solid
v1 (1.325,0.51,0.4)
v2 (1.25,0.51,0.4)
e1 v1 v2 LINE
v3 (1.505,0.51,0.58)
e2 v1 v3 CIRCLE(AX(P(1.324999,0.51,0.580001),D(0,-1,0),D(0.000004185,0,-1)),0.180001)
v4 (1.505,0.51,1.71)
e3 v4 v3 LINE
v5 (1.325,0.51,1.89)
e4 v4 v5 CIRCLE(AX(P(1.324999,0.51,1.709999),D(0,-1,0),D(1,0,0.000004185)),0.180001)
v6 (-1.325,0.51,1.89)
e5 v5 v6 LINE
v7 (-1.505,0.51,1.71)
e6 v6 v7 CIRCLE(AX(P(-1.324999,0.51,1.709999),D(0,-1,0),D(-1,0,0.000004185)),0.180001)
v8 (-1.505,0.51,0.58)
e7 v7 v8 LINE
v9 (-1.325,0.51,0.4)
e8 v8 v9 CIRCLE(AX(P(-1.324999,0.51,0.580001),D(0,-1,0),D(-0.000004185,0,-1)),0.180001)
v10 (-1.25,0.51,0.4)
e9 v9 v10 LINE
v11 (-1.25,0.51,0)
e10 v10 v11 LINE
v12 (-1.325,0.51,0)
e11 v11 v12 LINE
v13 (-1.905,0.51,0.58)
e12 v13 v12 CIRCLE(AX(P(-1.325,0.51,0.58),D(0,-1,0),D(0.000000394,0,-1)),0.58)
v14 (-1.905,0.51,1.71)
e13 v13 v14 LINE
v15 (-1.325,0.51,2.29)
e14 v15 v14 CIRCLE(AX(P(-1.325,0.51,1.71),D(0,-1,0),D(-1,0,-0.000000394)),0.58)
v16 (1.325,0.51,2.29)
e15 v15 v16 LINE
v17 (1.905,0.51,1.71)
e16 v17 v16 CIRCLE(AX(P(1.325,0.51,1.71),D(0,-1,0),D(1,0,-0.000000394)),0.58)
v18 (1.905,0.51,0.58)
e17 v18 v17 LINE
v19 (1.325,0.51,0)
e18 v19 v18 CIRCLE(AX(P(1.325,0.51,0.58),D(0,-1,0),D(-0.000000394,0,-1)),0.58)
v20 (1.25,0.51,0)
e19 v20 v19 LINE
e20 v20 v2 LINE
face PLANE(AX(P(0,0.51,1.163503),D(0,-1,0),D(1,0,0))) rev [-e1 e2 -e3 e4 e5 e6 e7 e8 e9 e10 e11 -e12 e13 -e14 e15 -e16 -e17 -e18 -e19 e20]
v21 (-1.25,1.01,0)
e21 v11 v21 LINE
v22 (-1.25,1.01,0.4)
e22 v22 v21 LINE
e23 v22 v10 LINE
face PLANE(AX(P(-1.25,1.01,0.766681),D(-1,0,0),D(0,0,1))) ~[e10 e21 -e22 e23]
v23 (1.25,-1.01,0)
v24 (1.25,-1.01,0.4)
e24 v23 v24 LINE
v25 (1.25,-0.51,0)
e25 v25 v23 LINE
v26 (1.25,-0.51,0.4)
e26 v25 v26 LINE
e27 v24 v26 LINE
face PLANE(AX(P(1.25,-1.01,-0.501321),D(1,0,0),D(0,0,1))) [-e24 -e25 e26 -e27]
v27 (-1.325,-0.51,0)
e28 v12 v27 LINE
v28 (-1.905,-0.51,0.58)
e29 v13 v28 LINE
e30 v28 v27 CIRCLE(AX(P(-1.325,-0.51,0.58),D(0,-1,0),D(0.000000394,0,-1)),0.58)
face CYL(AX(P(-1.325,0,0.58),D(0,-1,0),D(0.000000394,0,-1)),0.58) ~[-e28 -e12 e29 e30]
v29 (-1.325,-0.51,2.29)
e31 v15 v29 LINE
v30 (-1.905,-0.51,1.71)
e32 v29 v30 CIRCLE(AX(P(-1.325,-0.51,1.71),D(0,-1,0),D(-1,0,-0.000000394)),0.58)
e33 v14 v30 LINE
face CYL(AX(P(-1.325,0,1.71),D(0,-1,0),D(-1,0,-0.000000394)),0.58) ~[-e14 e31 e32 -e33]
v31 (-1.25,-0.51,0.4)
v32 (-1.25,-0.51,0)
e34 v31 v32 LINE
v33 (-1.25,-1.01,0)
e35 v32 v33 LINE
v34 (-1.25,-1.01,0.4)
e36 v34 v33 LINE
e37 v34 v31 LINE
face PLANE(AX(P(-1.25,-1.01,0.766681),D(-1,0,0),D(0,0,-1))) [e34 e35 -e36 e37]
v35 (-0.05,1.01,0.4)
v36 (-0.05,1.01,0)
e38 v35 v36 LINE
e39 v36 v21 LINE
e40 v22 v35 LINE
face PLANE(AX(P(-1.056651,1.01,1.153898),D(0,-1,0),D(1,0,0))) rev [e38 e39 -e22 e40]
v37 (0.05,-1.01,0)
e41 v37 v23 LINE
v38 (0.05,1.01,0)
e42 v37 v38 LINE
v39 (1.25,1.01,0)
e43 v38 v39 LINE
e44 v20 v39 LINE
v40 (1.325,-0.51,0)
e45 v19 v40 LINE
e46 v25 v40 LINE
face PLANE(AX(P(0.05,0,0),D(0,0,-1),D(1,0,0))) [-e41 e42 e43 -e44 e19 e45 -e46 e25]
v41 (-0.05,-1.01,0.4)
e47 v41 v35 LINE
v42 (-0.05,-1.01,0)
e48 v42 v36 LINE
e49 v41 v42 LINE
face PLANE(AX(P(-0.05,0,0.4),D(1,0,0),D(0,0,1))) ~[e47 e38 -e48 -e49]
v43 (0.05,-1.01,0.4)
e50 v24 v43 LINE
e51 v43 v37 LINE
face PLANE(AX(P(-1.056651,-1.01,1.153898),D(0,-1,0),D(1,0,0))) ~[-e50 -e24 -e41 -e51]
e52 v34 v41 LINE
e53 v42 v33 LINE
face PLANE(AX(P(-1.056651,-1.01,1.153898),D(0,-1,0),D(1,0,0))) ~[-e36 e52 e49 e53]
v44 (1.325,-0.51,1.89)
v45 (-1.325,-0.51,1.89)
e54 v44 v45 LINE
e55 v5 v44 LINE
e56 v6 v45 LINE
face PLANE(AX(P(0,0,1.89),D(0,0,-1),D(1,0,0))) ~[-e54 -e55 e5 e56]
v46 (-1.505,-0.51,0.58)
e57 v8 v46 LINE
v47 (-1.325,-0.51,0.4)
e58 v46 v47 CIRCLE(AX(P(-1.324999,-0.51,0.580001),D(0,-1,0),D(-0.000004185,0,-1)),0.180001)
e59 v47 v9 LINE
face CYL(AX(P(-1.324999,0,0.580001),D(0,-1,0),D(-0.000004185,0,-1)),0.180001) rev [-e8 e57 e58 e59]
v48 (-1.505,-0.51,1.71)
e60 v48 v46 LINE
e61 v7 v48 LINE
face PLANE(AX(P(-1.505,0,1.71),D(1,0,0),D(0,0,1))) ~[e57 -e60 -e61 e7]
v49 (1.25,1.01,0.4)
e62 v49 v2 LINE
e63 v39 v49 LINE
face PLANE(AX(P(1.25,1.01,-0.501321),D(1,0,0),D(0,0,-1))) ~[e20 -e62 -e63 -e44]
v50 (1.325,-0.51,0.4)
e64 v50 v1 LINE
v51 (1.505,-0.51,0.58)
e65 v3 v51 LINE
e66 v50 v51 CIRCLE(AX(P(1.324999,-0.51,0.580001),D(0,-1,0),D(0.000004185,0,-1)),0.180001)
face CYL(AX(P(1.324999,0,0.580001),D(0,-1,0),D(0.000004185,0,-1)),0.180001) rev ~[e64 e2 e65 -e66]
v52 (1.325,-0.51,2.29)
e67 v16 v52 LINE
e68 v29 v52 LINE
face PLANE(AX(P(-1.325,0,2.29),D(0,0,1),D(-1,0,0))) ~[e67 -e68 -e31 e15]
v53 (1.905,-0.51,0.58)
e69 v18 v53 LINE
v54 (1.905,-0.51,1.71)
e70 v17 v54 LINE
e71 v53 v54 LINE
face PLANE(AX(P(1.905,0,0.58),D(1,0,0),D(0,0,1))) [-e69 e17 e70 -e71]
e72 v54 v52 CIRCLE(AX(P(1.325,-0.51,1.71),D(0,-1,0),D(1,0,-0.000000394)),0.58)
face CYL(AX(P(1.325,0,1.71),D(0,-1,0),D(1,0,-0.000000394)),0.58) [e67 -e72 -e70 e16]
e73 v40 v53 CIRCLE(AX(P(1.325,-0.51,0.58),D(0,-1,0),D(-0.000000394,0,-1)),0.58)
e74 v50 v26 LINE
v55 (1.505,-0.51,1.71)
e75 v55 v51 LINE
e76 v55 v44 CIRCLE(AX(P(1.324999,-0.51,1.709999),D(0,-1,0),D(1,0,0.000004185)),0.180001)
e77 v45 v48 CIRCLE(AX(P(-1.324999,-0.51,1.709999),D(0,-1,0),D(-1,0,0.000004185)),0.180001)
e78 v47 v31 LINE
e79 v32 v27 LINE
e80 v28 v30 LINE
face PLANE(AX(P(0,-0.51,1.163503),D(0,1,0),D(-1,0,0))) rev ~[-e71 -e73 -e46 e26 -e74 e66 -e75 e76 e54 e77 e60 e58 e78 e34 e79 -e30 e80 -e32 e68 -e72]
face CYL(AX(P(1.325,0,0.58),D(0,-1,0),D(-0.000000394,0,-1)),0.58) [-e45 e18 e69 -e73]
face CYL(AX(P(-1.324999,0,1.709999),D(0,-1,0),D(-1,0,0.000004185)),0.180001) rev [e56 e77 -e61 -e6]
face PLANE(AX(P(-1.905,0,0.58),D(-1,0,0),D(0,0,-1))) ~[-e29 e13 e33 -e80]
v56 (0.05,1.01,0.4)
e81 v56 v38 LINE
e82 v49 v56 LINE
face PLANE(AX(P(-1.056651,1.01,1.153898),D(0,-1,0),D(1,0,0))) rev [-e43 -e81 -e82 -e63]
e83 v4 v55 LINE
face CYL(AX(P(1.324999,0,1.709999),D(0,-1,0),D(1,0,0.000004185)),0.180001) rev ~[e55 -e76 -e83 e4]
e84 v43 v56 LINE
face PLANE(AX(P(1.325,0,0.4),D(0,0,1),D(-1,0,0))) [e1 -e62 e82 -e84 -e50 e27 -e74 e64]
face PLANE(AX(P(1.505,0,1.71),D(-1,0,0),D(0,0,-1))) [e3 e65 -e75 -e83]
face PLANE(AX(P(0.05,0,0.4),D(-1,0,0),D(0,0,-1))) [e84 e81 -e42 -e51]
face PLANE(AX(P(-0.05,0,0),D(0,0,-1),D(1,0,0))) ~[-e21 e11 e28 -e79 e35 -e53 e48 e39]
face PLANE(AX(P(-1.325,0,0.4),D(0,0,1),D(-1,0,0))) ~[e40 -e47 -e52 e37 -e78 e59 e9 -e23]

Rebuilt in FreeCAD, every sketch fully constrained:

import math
import FreeCAD as App
import Part
import Sketcher
from FreeCAD import Vector
Q = App.Units.Quantity


def add_polygon(sketch, points):
    """Adds a closed chain of lines whose ends are joined by coincident constraints."""
    first, n = sketch.GeometryCount, len(points)
    for a, b in zip(points, points[1:] + points[:1]):
        sketch.addGeometry(Part.LineSegment(App.Vector(*a, 0), App.Vector(*b, 0)), False)
    for i in range(n):
        sketch.addConstraint(Sketcher.Constraint("Coincident", first + i, 2, first + (i + 1) % n, 1))

doc = App.newDocument("Part")
body = doc.addObject("PartDesign::Body", "Body")

sketch1 = body.newObject("Sketcher::SketchObject", "Sketch")
sketch1.AttachmentSupport = (doc.getObject("XZ_Plane"), [""])
sketch1.MapMode = "FlatFace"
sketch1.addGeometry(Part.LineSegment(Vector(0.05, 0, 0), Vector(1.32, 0, 0)), False)
sketch1.addGeometry(Part.ArcOfCircle(Part.Circle(Vector(1.33, 0.58, 0), Vector(0, 0, 1), 0.58), math.radians(-90), math.radians(0)), False)
sketch1.addGeometry(Part.LineSegment(Vector(1.91, 0.58, 0), Vector(1.91, 1.71, 0)), False)
sketch1.addGeometry(Part.ArcOfCircle(Part.Circle(Vector(1.33, 1.71, 0), Vector(0, 0, 1), 0.58), math.radians(0), math.radians(90)), False)
sketch1.addGeometry(Part.LineSegment(Vector(1.32, 2.29, 0), Vector(0, 2.29, 0)), False)
sketch1.addGeometry(Part.LineSegment(Vector(0, 2.29, 0), Vector(0, 1.89, 0)), False)
sketch1.addGeometry(Part.LineSegment(Vector(0, 1.89, 0), Vector(1.32, 1.89, 0)), False)
sketch1.addGeometry(Part.ArcOfCircle(Part.Circle(Vector(1.32, 1.71, 0), Vector(0, 0, 1), 0.18), math.radians(0), math.radians(90)), False)
sketch1.addGeometry(Part.LineSegment(Vector(1.5, 1.71, 0), Vector(1.5, 0.58, 0)), False)
sketch1.addGeometry(Part.ArcOfCircle(Part.Circle(Vector(1.32, 0.58, 0), Vector(0, 0, 1), 0.18), math.radians(-90), math.radians(0)), False)
sketch1.addGeometry(Part.LineSegment(Vector(1.32, 0.4, 0), Vector(0.05, 0.4, 0)), False)
sketch1.addGeometry(Part.LineSegment(Vector(0.05, 0.4, 0), Vector(0.05, 0, 0)), False)
sketch1.addConstraint(Sketcher.Constraint("Tangent", 0, 2, 1, 1))
sketch1.addConstraint(Sketcher.Constraint("Tangent", 1, 2, 2, 1))
sketch1.addConstraint(Sketcher.Constraint("Tangent", 2, 2, 3, 1))
sketch1.addConstraint(Sketcher.Constraint("Tangent", 3, 2, 4, 1))
sketch1.addConstraint(Sketcher.Constraint("Coincident", 4, 2, 5, 1))
sketch1.addConstraint(Sketcher.Constraint("Coincident", 5, 2, 6, 1))
sketch1.addConstraint(Sketcher.Constraint("Coincident", 6, 2, 7, 2))
sketch1.addConstraint(Sketcher.Constraint("Coincident", 7, 1, 8, 1))
sketch1.addConstraint(Sketcher.Constraint("Coincident", 8, 2, 9, 2))
sketch1.addConstraint(Sketcher.Constraint("Coincident", 9, 1, 10, 1))
sketch1.addConstraint(Sketcher.Constraint("Coincident", 10, 2, 11, 1))
sketch1.addConstraint(Sketcher.Constraint("Coincident", 11, 2, 0, 1))
sketch1.addConstraint(Sketcher.Constraint("Horizontal", 0))
sketch1.addConstraint(Sketcher.Constraint("Vertical", 2))
sketch1.addConstraint(Sketcher.Constraint("Horizontal", 4))
sketch1.addConstraint(Sketcher.Constraint("Vertical", 5))
sketch1.addConstraint(Sketcher.Constraint("Horizontal", 6))
sketch1.addConstraint(Sketcher.Constraint("Vertical", 8))
sketch1.addConstraint(Sketcher.Constraint("Horizontal", 10))
sketch1.addConstraint(Sketcher.Constraint("Vertical", 11))
sketch1.addConstraint(Sketcher.Constraint("Coincident", 7, 3, 3, 3))
sketch1.addConstraint(Sketcher.Constraint("Coincident", 9, 3, 1, 3))
sketch1.addConstraint(Sketcher.Constraint("Equal", 1, 3))
sketch1.addConstraint(Sketcher.Constraint("PointOnObject", 0, 2, -1))
sketch1.addConstraint(Sketcher.Constraint("PointOnObject", 4, 2, -2))
sketch1.addConstraint(Sketcher.Constraint("Horizontal", 2, 2, 7, 1))
sketch1.addConstraint(Sketcher.Constraint("Horizontal", 1, 2, 8, 2))
sketch1.addConstraint(Sketcher.Constraint("Vertical", 3, 2, 6, 2))
sketch1.addConstraint(Sketcher.Constraint("Vertical", 6, 2, 9, 1))
sketch1.addConstraint(Sketcher.Constraint("Radius", 1, Q("0.58 mm")))
sketch1.addConstraint(Sketcher.Constraint("Radius", 7, Q("0.180001 mm")))
sketch1.addConstraint(Sketcher.Constraint("DistanceY", 2, 1, 2, 2, Q("1.13 mm")))
sketch1.addConstraint(Sketcher.Constraint("DistanceX", 0, 1, 0, 2, Q("1.275 mm")))
sketch1.addConstraint(Sketcher.Constraint("DistanceX", 4, 2, 4, 1, Q("1.325 mm")))
pad1 = body.newObject("PartDesign::Pad", "Pad")
pad1.Profile = sketch1
pad1.Length = 2.02
pad1.Midplane = True
doc.recompute()

mirrored = body.newObject("PartDesign::Mirrored", "Mirrored")
mirrored.Originals = [pad1]
mirrored.MirrorPlane = (doc.getObject("YZ_Plane"), [""])
body.Tip = mirrored

sketch2 = body.newObject("Sketcher::SketchObject", "Sketch001")
sketch2.AttachmentSupport = (doc.getObject("XZ_Plane"), [""])
sketch2.MapMode = "FlatFace"
sketch2.AttachmentOffset = App.Placement(Vector(0, 0, 1.01), App.Rotation())
add_polygon(sketch2, [(1.2, 0.8), (1.2, -0.5), (2.3, -0.5), (2.3, 2.8), (-2.3, 2.8), (-2.3, -0.5), (-1.2, -0.5), (-1.2, 0.8)])
sketch2.addConstraint(Sketcher.Constraint("Vertical", 0))
sketch2.addConstraint(Sketcher.Constraint("Horizontal", 1))
sketch2.addConstraint(Sketcher.Constraint("Vertical", 2))
sketch2.addConstraint(Sketcher.Constraint("Horizontal", 3))
sketch2.addConstraint(Sketcher.Constraint("Vertical", 4))
sketch2.addConstraint(Sketcher.Constraint("Horizontal", 5))
sketch2.addConstraint(Sketcher.Constraint("Vertical", 6))
sketch2.addConstraint(Sketcher.Constraint("Horizontal", 7))
sketch2.addConstraint(Sketcher.Constraint("Symmetric", 1, 2, 4, 2, -2))
sketch2.addConstraint(Sketcher.Constraint("Equal", 1, 5))
sketch2.addConstraint(Sketcher.Constraint("DistanceX", 7, 1, 7, 2, Q("2.5 mm")))
sketch2.addConstraint(Sketcher.Constraint("DistanceX", 3, 2, 3, 1, Q("4.6973 mm")))
sketch2.addConstraint(Sketcher.Constraint("DistanceY", 0, 2, 0, 1, Q("1.268002 mm")))
sketch2.addConstraint(Sketcher.Constraint("DistanceY", 2, 1, 2, 2, Q("3.259793 mm")))
sketch2.addConstraint(Sketcher.Constraint("DistanceY", 0, 2, -1, 1, Q("0.501321 mm")))
pocket1 = body.newObject("PartDesign::Pocket", "Pocket")
pocket1.Profile = sketch2
pocket1.Length = 0.5
doc.recompute()

mirrored2 = body.newObject("PartDesign::Mirrored", "Mirrored001")
mirrored2.Originals = [pocket1]
mirrored2.MirrorPlane = (doc.getObject("XZ_Plane"), [""])
body.Tip = mirrored2

doc.recompute()
